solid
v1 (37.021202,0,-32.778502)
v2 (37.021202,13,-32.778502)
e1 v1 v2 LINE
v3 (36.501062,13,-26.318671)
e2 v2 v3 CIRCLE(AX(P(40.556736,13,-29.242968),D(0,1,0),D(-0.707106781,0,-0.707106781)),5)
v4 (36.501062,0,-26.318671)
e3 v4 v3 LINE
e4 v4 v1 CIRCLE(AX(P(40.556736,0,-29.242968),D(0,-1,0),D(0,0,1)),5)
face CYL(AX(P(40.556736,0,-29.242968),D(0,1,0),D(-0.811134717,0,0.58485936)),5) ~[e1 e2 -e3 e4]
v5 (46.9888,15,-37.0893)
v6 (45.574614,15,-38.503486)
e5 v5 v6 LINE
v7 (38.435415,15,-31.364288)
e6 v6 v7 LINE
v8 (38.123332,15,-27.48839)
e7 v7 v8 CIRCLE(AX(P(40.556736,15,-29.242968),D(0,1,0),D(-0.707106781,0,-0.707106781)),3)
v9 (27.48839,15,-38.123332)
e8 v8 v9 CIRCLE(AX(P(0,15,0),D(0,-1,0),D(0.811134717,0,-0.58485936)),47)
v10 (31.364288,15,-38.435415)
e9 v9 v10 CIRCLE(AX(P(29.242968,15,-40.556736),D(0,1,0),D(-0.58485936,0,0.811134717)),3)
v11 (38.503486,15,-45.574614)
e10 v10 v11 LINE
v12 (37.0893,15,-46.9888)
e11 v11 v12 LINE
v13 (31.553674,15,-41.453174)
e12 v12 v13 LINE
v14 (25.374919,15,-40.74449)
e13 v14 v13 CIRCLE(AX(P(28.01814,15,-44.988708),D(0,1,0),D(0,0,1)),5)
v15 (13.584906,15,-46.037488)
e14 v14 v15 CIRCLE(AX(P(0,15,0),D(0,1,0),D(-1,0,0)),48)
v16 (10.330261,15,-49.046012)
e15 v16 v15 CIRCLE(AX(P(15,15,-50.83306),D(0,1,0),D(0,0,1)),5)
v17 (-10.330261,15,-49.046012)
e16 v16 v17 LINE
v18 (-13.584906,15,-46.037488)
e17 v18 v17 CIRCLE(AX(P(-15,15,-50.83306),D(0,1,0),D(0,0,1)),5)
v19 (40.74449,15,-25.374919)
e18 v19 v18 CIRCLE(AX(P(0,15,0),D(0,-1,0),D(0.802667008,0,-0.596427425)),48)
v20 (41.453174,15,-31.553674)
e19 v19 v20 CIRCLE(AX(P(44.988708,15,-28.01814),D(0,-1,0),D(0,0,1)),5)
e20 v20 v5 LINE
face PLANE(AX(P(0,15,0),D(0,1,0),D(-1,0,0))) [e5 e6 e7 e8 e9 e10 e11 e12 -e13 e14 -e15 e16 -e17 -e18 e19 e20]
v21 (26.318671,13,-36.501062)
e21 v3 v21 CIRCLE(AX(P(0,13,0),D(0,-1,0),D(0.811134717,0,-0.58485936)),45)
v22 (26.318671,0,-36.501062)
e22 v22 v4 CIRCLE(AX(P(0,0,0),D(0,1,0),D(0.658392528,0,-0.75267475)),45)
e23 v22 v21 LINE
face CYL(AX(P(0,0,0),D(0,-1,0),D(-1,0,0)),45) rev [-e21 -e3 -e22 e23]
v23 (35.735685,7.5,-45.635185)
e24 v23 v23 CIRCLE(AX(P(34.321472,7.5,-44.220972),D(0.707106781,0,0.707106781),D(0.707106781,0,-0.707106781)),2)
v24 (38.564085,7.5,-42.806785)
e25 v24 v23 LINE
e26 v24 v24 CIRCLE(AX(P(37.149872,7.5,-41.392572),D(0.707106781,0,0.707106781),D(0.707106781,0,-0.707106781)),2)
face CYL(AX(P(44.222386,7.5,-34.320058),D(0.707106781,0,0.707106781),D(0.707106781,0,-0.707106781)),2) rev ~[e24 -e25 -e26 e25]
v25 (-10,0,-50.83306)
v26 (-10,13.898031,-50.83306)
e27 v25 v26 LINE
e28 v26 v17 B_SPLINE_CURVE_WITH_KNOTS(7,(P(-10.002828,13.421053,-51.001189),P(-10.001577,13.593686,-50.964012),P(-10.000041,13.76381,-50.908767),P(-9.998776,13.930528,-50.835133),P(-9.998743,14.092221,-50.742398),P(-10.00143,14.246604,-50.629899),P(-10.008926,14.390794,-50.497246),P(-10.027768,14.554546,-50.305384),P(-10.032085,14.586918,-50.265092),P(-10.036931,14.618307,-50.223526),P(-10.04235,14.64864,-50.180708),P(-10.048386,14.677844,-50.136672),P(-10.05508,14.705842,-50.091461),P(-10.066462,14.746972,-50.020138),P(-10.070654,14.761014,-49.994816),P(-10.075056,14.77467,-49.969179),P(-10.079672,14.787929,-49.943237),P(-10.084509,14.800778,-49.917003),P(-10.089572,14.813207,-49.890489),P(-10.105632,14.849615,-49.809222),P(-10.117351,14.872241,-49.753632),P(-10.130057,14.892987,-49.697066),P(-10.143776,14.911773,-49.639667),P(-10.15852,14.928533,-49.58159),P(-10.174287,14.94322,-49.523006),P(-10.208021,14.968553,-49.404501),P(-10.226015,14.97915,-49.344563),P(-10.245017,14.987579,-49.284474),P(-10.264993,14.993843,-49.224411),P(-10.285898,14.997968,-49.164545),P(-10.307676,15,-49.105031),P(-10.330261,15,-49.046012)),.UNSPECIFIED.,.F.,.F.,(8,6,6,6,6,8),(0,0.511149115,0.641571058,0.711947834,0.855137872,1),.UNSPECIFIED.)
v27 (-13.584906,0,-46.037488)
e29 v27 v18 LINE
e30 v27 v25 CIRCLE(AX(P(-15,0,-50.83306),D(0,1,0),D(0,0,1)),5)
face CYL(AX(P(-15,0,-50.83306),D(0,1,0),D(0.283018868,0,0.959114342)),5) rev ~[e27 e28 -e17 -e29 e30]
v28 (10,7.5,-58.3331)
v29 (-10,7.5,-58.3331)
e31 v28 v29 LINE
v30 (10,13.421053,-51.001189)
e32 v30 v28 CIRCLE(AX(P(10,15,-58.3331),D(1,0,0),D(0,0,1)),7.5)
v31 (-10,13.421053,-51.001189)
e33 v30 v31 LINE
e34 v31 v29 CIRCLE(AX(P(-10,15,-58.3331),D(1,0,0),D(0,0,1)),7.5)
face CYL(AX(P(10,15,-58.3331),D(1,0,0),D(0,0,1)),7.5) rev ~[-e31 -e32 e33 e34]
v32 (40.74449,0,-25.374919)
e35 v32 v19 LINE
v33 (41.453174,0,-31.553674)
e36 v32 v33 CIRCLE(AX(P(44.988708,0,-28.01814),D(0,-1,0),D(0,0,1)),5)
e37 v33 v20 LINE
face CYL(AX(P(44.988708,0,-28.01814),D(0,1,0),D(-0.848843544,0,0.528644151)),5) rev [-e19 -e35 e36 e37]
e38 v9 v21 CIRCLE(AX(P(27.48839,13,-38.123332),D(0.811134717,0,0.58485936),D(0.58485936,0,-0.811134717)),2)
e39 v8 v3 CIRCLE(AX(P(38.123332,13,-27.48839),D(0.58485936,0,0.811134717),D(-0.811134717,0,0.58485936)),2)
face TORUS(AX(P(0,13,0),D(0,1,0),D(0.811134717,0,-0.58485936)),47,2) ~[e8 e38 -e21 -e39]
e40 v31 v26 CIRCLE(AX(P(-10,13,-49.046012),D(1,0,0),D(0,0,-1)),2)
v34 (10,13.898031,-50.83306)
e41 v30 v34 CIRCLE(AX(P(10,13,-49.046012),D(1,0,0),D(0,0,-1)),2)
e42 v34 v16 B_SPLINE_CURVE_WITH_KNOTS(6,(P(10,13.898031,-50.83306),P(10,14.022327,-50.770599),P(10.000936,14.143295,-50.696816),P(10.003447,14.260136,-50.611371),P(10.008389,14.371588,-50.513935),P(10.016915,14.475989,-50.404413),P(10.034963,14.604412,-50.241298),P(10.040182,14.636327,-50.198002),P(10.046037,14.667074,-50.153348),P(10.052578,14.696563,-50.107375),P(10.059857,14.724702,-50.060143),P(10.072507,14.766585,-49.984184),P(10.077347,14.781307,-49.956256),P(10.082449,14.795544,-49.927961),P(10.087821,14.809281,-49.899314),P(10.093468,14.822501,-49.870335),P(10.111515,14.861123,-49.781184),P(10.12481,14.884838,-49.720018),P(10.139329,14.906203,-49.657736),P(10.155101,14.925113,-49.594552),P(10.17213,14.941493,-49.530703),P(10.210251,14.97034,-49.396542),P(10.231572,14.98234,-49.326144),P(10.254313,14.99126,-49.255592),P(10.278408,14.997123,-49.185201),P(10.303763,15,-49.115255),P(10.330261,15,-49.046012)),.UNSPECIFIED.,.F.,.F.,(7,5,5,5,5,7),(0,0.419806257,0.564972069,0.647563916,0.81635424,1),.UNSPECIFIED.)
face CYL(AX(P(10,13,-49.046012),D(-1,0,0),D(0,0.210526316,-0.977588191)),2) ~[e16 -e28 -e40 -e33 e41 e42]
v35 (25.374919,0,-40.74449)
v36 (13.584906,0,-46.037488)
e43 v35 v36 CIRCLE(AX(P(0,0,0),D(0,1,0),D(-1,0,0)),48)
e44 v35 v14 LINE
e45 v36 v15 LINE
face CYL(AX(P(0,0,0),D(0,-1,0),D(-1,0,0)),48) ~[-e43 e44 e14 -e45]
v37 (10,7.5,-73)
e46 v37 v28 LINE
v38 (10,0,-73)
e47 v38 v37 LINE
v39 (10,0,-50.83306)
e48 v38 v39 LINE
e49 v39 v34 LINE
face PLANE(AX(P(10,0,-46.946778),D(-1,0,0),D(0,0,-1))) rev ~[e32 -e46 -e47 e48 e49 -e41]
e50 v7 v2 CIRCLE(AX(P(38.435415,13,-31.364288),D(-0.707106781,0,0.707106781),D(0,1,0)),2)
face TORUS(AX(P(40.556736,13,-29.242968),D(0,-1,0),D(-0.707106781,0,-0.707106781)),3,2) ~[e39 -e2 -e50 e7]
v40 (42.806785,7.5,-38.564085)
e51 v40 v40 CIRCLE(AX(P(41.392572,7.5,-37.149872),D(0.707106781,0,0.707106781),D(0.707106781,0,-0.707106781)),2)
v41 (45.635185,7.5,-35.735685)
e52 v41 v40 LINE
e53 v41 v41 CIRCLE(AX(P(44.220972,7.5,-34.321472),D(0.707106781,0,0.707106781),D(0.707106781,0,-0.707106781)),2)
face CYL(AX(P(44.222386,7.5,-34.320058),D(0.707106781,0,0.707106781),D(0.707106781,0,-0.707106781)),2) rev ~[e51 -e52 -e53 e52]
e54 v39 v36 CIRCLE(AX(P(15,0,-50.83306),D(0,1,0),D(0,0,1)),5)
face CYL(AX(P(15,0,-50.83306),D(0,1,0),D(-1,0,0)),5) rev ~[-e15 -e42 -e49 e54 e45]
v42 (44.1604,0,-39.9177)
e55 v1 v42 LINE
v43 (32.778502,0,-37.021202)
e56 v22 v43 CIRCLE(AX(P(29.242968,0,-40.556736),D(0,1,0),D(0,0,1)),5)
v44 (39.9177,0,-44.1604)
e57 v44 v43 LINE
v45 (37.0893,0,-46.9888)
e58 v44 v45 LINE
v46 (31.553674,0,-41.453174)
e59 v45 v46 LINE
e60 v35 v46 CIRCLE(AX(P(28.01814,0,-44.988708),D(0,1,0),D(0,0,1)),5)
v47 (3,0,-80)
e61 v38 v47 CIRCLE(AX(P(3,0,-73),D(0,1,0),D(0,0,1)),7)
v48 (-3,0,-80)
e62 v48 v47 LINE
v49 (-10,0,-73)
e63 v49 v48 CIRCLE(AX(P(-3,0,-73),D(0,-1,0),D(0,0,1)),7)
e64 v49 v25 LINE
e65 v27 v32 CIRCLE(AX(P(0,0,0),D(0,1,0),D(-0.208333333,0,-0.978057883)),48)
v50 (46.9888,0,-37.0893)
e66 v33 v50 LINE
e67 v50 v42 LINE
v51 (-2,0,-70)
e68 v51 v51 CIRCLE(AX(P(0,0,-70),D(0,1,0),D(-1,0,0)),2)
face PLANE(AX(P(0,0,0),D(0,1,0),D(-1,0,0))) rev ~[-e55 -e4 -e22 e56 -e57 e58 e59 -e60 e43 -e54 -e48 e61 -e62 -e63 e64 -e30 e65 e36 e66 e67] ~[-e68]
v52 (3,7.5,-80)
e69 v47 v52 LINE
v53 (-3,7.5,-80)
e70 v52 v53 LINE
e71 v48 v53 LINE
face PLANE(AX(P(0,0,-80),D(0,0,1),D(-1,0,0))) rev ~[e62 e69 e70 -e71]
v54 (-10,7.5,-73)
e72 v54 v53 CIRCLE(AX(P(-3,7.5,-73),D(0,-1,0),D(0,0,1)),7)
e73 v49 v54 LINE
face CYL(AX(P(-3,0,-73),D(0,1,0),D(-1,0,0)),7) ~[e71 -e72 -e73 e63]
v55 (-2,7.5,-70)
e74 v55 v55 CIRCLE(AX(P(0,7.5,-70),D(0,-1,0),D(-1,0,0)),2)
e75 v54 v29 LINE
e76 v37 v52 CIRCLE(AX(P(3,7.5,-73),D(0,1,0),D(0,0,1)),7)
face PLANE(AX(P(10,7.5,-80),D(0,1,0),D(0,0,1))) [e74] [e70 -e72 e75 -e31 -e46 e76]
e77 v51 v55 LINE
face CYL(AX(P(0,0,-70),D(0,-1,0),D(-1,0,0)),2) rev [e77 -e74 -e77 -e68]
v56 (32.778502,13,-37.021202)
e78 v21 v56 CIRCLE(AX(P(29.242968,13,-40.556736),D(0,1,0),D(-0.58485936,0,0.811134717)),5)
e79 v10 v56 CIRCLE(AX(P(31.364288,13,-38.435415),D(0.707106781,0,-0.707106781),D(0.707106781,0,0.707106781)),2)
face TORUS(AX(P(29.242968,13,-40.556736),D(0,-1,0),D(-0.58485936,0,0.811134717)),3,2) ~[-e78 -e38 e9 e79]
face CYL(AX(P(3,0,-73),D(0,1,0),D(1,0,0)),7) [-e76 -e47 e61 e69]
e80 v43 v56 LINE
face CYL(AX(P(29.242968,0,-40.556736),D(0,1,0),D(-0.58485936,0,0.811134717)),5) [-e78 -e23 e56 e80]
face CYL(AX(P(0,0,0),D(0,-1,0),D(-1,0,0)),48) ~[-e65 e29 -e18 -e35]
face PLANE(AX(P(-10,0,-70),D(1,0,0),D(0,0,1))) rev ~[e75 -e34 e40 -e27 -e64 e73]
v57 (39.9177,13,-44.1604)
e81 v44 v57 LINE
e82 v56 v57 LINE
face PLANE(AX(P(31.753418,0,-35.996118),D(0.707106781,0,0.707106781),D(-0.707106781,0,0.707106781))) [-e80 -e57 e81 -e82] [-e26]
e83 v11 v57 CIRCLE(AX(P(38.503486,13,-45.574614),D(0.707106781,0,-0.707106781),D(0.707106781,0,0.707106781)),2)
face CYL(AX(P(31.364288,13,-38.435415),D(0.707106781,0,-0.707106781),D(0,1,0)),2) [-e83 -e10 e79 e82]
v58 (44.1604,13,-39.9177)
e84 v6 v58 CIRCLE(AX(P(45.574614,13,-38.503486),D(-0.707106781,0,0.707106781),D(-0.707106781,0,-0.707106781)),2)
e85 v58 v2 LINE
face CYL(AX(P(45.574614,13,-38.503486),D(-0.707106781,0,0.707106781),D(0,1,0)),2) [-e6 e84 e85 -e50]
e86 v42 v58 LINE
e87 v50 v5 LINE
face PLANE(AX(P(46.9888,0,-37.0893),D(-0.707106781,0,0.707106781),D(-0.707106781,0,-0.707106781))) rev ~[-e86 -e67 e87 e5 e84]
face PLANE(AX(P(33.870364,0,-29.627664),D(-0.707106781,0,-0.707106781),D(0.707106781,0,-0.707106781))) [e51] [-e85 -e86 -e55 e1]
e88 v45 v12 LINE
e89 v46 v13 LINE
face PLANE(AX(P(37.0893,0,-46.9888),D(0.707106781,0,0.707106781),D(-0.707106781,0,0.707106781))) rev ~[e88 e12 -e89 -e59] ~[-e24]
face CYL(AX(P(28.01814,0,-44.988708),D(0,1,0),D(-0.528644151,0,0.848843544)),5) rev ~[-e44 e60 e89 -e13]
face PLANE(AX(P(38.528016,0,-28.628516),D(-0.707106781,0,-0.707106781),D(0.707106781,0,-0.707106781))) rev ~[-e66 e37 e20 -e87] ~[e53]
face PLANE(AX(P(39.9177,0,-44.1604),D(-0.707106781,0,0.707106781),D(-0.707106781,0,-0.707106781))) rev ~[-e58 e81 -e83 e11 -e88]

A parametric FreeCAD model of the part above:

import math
import FreeCAD as App
import Part
import Sketcher
Q = App.Units.Quantity


def edges_at(feature, points):
    """Names of the edges that pass closest to the given points."""
    edges = feature.Shape.Edges
    near = lambda p: min(range(len(edges)), key=lambda i: edges[i].distToShape(Part.Vertex(*p))[0])
    return sorted({f"Edge{near(p) + 1}" for p in points})

doc = App.newDocument("Part")
params = doc.addObject("Spreadsheet::Sheet", "Params")
for row, (alias, value) in enumerate([
    ("sketch1_diameter", "4 mm"),
    ("sketch1_radius", "48 mm"),
    ("sketch1_radius2", "45 mm"),
    ("sketch1_width", "20 mm"),
    ("sketch1_length", "4 mm"),
    ("pad1_length", "15 mm"),
    ("fillet_radius", "5 mm"),
    ("sketch2_radius", "7.5 mm"),
    ("fillet2_radius", "7 mm"),
    ("sketch3_diameter", "4 mm"),
    ("pocket2_length", "14 mm"),
    ("fillet3_radius", "2 mm"),
    ("fillet4_radius", "2 mm"),
], start=1):
    params.set(f"A{row}", alias)
    params.set(f"B{row}", "=" + value)
    params.setAlias(f"B{row}", alias)

body = doc.addObject("PartDesign::Body", "Body")

sketch1 = body.newObject("Sketcher::SketchObject", "Sketch")
sketch1.AttachmentSupport = (doc.getObject("XZ_Plane"), [""])
sketch1.MapMode = "FlatFace"
sketch1.addGeometry([
    Part.ArcOfCircle(Part.Circle(App.Vector(0, 0, 0), App.Vector(0, 0, 1), 48), math.radians(-36.614457), math.radians(257.975301)),
    Part.LineSegment(App.Vector(38.528016, -28.628516, 0), App.Vector(46.9888, -37.0893, 0)),
    Part.LineSegment(App.Vector(46.9888, -37.0893, 0), App.Vector(44.1604, -39.9177, 0)),
    Part.LineSegment(App.Vector(44.1604, -39.9177, 0), App.Vector(33.870364, -29.627664, 0)),
    Part.ArcOfCircle(Part.Circle(App.Vector(0, 0, 0), App.Vector(0, 0, 1), 45), math.radians(-41.177393), math.radians(311.177393)),
    Part.LineSegment(App.Vector(29.627664, -33.870364, 0), App.Vector(39.9177, -44.1604, 0)),
    Part.LineSegment(App.Vector(39.9177, -44.1604, 0), App.Vector(37.0893, -46.9888, 0)),
    Part.LineSegment(App.Vector(37.0893, -46.9888, 0), App.Vector(28.628516, -38.528016, 0)),
    Part.ArcOfCircle(Part.Circle(App.Vector(0, 0, 0), App.Vector(0, 0, 1), 48), math.radians(-77.975301), math.radians(-53.385543)),
    Part.LineSegment(App.Vector(10, -46.946778, 0), App.Vector(10, -80, 0)),
    Part.LineSegment(App.Vector(10, -80, 0), App.Vector(-10, -80, 0)),
    Part.LineSegment(App.Vector(-10, -80, 0), App.Vector(-10, -46.946778, 0)),
    Part.Circle(App.Vector(0, -70, 0), App.Vector(0, 0, 1), 2),
], False)
sketch1.addConstraint([
    Sketcher.Constraint("Coincident", 0, 1, 1, 1),
    Sketcher.Constraint("Coincident", 1, 2, 2, 1),
    Sketcher.Constraint("Coincident", 2, 2, 3, 1),
    Sketcher.Constraint("Coincident", 3, 2, 4, 1),
    Sketcher.Constraint("Coincident", 4, 2, 5, 1),
    Sketcher.Constraint("Coincident", 5, 2, 6, 1),
    Sketcher.Constraint("Coincident", 6, 2, 7, 1),
    Sketcher.Constraint("Coincident", 7, 2, 8, 2),
    Sketcher.Constraint("Coincident", 8, 1, 9, 1),
    Sketcher.Constraint("Coincident", 9, 2, 10, 1),
    Sketcher.Constraint("Coincident", 10, 2, 11, 1),
    Sketcher.Constraint("Coincident", 11, 2, 0, 2),
    Sketcher.Constraint("Vertical", 9),
    Sketcher.Constraint("Horizontal", 10),
    Sketcher.Constraint("Vertical", 11),
    Sketcher.Constraint("Coincident", 0, 3, -1, 1),
    Sketcher.Constraint("Coincident", 4, 3, -1, 1),
    Sketcher.Constraint("Coincident", 8, 3, -1, 1),
    Sketcher.Constraint("Equal", 0, 8),
    Sketcher.Constraint("PointOnObject", 12, 3, -2),
    Sketcher.Constraint("Perpendicular", 1, 2),
    Sketcher.Constraint("Perpendicular", 2, 3),
    Sketcher.Constraint("Parallel", 3, 5),
    Sketcher.Constraint("Perpendicular", 5, 6),
    Sketcher.Constraint("Perpendicular", 6, 7),
    Sketcher.Constraint("Horizontal", 8, 1, 11, 2),
    Sketcher.Constraint("Equal", 3, 5),
    Sketcher.Constraint("Equal", 2, 6),
    Sketcher.Constraint("Equal", 1, 7),
    Sketcher.Constraint("Diameter", 12, 4.0),
    Sketcher.Constraint("Radius", 0, 48.0),
    Sketcher.Constraint("Radius", 4, 45.0),
    Sketcher.Constraint("DistanceX", 10, 2, 10, 1, 20.0),
    Sketcher.Constraint("Angle", 1, Q("-45 deg")),
    Sketcher.Constraint("Distance", 2, 4.0),
    Sketcher.Constraint("DistanceY", 12, 3, -1, 1, 70.0),
    Sketcher.Constraint("DistanceY", 9, 2, -1, 1, 80.0),
    Sketcher.Constraint("DistanceX", 3, 2, 2, 2, 10.29),
    Sketcher.Constraint("DistanceX", -1, 1, 0, 1, 38.528),
])
sketch1.setExpression("Constraints[29]", "Params.sketch1_diameter")
sketch1.setExpression("Constraints[30]", "Params.sketch1_radius")
sketch1.setExpression("Constraints[31]", "Params.sketch1_radius2")
sketch1.setExpression("Constraints[32]", "Params.sketch1_width")
sketch1.setExpression("Constraints[34]", "Params.sketch1_length")
pad1 = body.newObject("PartDesign::Pad", "Pad")
pad1.Profile = sketch1
pad1.setExpression("Length", "Params.pad1_length")
pad1.Reversed = True
doc.recompute()

fillet = body.newObject("PartDesign::Fillet", "Fillet")
fillet.Base = (pad1, edges_at(pad1, [
    (38.528, 7.5, -28.628),
    (28.628, 7.5, -38.528),
    (10, 7.5, -46.947),
    (-10, 7.5, -46.947),
    (33.87, 7.5, -29.628),
    (29.628, 7.5, -33.87),
]))
fillet.setExpression("Radius", "Params.fillet_radius")

sketch2 = body.newObject("Sketcher::SketchObject", "Sketch001")
sketch2.AttachmentSupport = (doc.getObject("YZ_Plane"), [""])
sketch2.MapMode = "FlatFace"
sketch2.AttachmentOffset = App.Placement(App.Vector(0, 0, 10), App.Rotation())
sketch2.addGeometry([
    Part.LineSegment(App.Vector(7.5, -80, 0), App.Vector(15, -80, 0)),
    Part.LineSegment(App.Vector(15, -80, 0), App.Vector(15, -50.8331, 0)),
    Part.ArcOfCircle(Part.Circle(App.Vector(15, -58.3331, 0), App.Vector(0, 0, 1), 7.5), math.radians(90), math.radians(180)),
    Part.LineSegment(App.Vector(7.5, -58.3331, 0), App.Vector(7.5, -80, 0)),
], False)
sketch2.addConstraint([
    Sketcher.Constraint("Coincident", 0, 2, 1, 1),
    Sketcher.Constraint("Coincident", 1, 2, 2, 1),
    Sketcher.Constraint("Tangent", 2, 2, 3, 1),
    Sketcher.Constraint("Coincident", 3, 2, 0, 1),
    Sketcher.Constraint("Horizontal", 0),
    Sketcher.Constraint("Vertical", 1),
    Sketcher.Constraint("Vertical", 3),
    Sketcher.Constraint("Vertical", 2, 3, 0, 2),
    Sketcher.Constraint("Radius", 2, 7.5),
    Sketcher.Constraint("DistanceX", -1, 1, 2, 3, 15.0),
    Sketcher.Constraint("DistanceY", 0, 2, -1, 1, 80.0),
    Sketcher.Constraint("DistanceY", 1, 1, 1, 2, 29.167),
])
sketch2.setExpression("Constraints[8]", "Params.sketch2_radius")
pocket1 = body.newObject("PartDesign::Pocket", "Pocket")
pocket1.Profile = sketch2
pocket1.Type = "ThroughAll"
doc.recompute()

fillet2 = body.newObject("PartDesign::Fillet", "Fillet001")
fillet2.Base = (pocket1, edges_at(pocket1, [(10, 3.75, -80), (-10, 3.75, -80)]))
fillet2.setExpression("Radius", "Params.fillet2_radius")

sketch3 = body.newObject("Sketcher::SketchObject", "Sketch002")
sketch3.Placement = App.Placement(App.Vector(46.9888, 0, -37.0893), App.Rotation(App.Vector(0.707106781, 0, -0.707106781), App.Vector(0, 0.999999999, 0), App.Vector(0.707106781, 0, 0.707106781), "ZXY"))
sketch3.addGeometry(Part.Circle(App.Vector(-3.9143, 7.5, 0), App.Vector(0, 0, 1), 2), False)
sketch3.addConstraint([
    Sketcher.Constraint("Diameter", 0, 4.0),
    Sketcher.Constraint("DistanceY", -1, 1, 0, 3, 7.5),
    Sketcher.Constraint("DistanceX", 0, 3, -1, 1, 3.9143),
])
sketch3.setExpression("Constraints[0]", "Params.sketch3_diameter")
pocket2 = body.newObject("PartDesign::Pocket", "Pocket001")
pocket2.Profile = sketch3
pocket2.setExpression("Length", "Params.pocket2_length")
doc.recompute()

fillet3 = body.newObject("PartDesign::Fillet", "Fillet002")
fillet3.Base = (pocket2, edges_at(pocket2, [(0, 15, -50.833)]))
fillet3.setExpression("Radius", "Params.fillet3_radius")
doc.recompute()

fillet4 = body.newObject("PartDesign::Fillet", "Fillet003")
fillet4.Base = (fillet3, edges_at(fillet3, [
    (-31.82, 15, 31.82),
    (29.644, 15, -35.573),
    (36.348, 15, -40.591),
    (35.573, 15, -29.644),
    (40.591, 15, -36.348),
]))
fillet4.setExpression("Radius", "Params.fillet4_radius")

doc.recompute()
